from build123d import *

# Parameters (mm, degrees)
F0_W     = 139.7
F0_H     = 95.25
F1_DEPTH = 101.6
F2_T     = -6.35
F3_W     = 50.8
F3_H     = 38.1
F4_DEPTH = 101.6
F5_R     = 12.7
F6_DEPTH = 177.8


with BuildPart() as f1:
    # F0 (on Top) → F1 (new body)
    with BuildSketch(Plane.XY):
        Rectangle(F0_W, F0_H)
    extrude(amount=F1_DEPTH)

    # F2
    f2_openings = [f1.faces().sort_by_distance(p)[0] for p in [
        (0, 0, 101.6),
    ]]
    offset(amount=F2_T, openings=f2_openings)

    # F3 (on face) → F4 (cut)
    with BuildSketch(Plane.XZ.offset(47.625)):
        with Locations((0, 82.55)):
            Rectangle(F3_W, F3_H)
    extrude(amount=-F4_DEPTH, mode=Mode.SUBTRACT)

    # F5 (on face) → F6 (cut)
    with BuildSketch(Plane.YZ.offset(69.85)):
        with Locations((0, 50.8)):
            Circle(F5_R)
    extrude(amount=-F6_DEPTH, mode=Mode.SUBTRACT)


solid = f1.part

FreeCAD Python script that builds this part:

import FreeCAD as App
import Part
import Sketcher
from FreeCAD import Vector
Q = App.Units.Quantity


def faces_at(feature, points):
    """Names of the faces that lie closest to the given points."""
    faces = feature.Shape.Faces
    near = lambda p: min(range(len(faces)), key=lambda i: faces[i].distToShape(Part.Vertex(*p))[0])
    return sorted({f"Face{near(p) + 1}" for p in points})

doc = App.newDocument("Part")
params = doc.addObject("Spreadsheet::Sheet", "Params")
for row, (alias, value) in enumerate([
    ("sketch1_width", "5.5 in"),
    ("sketch1_height", "3.75 in"),
    ("pad1_length", "4 in"),
    ("thickness_wall", "0.25 in"),
    ("sketch2_width", "2 in"),
    ("sketch2_height", "1.5 in"),
    ("pocket1_length", "4 in"),
    ("sketch3_diameter", "1 in"),
    ("pocket2_length", "7 in"),
], start=1):
    params.set(f"A{row}", alias)
    params.set(f"B{row}", "=" + value)
    params.setAlias(f"B{row}", alias)

body = doc.addObject("PartDesign::Body", "Body")

# Sketch on XY plane
sketch1 = doc.addObject("Sketcher::SketchObject", "Sketch")
body.addObject(sketch1)
sketch1.AttachmentSupport = (doc.XY_Plane, [""])
sketch1.MapMode = "FlatFace"
sketch1.addGeometry([
    Part.LineSegment(Vector(-69.85, 47.625, 0), Vector(-69.85, -47.625, 0)),
    Part.LineSegment(Vector(-69.85, -47.625, 0), Vector(69.85, -47.625, 0)),
    Part.LineSegment(Vector(69.85, -47.625, 0), Vector(69.85, 47.625, 0)),
    Part.LineSegment(Vector(69.85, 47.625, 0), Vector(-69.85, 47.625, 0)),
], False)
sketch1.addConstraint([
    Sketcher.Constraint("Coincident", 0, 2, 1, 1),
    Sketcher.Constraint("Coincident", 1, 2, 2, 1),
    Sketcher.Constraint("Coincident", 2, 2, 3, 1),
    Sketcher.Constraint("Coincident", 3, 2, 0, 1),
    Sketcher.Constraint("Vertical", 0),
    Sketcher.Constraint("Horizontal", 1),
    Sketcher.Constraint("Vertical", 2),
    Sketcher.Constraint("Horizontal", 3),
    Sketcher.Constraint("Symmetric", 0, 2, 2, 2, -1, 1),
    Sketcher.Constraint("DistanceX", 1, 1, 1, 2, Q("5.5 in")),
    Sketcher.Constraint("DistanceY", 0, 2, 0, 1, Q("3.75 in")),
])
sketch1.setExpression("Constraints[9]", "Params.sketch1_width")
sketch1.setExpression("Constraints[10]", "Params.sketch1_height")
pad1 = doc.addObject("PartDesign::Pad", "Pad")
body.addObject(pad1)
pad1.Profile = sketch1
pad1.setExpression("Length", "Params.pad1_length")
doc.recompute()

thickness = doc.addObject("PartDesign::Thickness", "Thickness")
body.addObject(thickness)
thickness.Base = (pad1, faces_at(pad1, [(0, 0, 101.6)]))
thickness.setExpression("Value", "Params.thickness_wall")
thickness.Reversed = True
thickness.Join = "Arc"

# Sketch on XZ plane
sketch2 = doc.addObject("Sketcher::SketchObject", "Sketch001")
body.addObject(sketch2)
sketch2.AttachmentSupport = (doc.XZ_Plane, [""])
sketch2.MapMode = "FlatFace"
sketch2.AttachmentOffset = App.Placement(Vector(0, 0, 1.875 * 25.4), App.Rotation())
sketch2.addGeometry([
    Part.LineSegment(Vector(-25.4, 101.6, 0), Vector(-25.4, 63.5, 0)),
    Part.LineSegment(Vector(-25.4, 63.5, 0), Vector(25.4, 63.5, 0)),
    Part.LineSegment(Vector(25.4, 63.5, 0), Vector(25.4, 101.6, 0)),
    Part.LineSegment(Vector(25.4, 101.6, 0), Vector(-25.4, 101.6, 0)),
], False)
sketch2.addConstraint([
    Sketcher.Constraint("Coincident", 0, 2, 1, 1),
    Sketcher.Constraint("Coincident", 1, 2, 2, 1),
    Sketcher.Constraint("Coincident", 2, 2, 3, 1),
    Sketcher.Constraint("Coincident", 3, 2, 0, 1),
    Sketcher.Constraint("Vertical", 0),
    Sketcher.Constraint("Horizontal", 1),
    Sketcher.Constraint("Vertical", 2),
    Sketcher.Constraint("Horizontal", 3),
    Sketcher.Constraint("DistanceX", 1, 1, 1, 2, Q("2 in")),
    Sketcher.Constraint("DistanceY", 0, 2, 0, 1, Q("1.5 in")),
    Sketcher.Constraint("DistanceX", 0, 2, -1, 1, Q("1 in")),
    Sketcher.Constraint("DistanceY", -1, 1, 2, 2, Q("4 in")),
])
sketch2.setExpression("Constraints[8]", "Params.sketch2_width")
sketch2.setExpression("Constraints[9]", "Params.sketch2_height")
pocket1 = doc.addObject("PartDesign::Pocket", "Pocket")
body.addObject(pocket1)
pocket1.Profile = sketch2
pocket1.setExpression("Length", "Params.pocket1_length")

# Sketch on YZ plane
sketch3 = doc.addObject("Sketcher::SketchObject", "Sketch002")
body.addObject(sketch3)
sketch3.AttachmentSupport = (doc.YZ_Plane, [""])
sketch3.MapMode = "FlatFace"
sketch3.AttachmentOffset = App.Placement(Vector(0, 0, 2.75 * 25.4), App.Rotation())
sketch3.addGeometry(Part.Circle(Vector(0, 50.8, 0), Vector(0, 0, 1), 12.7), False)
sketch3.addConstraint([
    Sketcher.Constraint("PointOnObject", 0, 3, -2),
    Sketcher.Constraint("Diameter", 0, Q("1 in")),
    Sketcher.Constraint("DistanceY", -1, 1, 0, 3, Q("2 in")),
])
sketch3.setExpression("Constraints[1]", "Params.sketch3_diameter")
pocket2 = doc.addObject("PartDesign::Pocket", "Pocket001")
body.addObject(pocket2)
pocket2.Profile = sketch3
pocket2.setExpression("Length", "Params.pocket2_length")

doc.recompute()
